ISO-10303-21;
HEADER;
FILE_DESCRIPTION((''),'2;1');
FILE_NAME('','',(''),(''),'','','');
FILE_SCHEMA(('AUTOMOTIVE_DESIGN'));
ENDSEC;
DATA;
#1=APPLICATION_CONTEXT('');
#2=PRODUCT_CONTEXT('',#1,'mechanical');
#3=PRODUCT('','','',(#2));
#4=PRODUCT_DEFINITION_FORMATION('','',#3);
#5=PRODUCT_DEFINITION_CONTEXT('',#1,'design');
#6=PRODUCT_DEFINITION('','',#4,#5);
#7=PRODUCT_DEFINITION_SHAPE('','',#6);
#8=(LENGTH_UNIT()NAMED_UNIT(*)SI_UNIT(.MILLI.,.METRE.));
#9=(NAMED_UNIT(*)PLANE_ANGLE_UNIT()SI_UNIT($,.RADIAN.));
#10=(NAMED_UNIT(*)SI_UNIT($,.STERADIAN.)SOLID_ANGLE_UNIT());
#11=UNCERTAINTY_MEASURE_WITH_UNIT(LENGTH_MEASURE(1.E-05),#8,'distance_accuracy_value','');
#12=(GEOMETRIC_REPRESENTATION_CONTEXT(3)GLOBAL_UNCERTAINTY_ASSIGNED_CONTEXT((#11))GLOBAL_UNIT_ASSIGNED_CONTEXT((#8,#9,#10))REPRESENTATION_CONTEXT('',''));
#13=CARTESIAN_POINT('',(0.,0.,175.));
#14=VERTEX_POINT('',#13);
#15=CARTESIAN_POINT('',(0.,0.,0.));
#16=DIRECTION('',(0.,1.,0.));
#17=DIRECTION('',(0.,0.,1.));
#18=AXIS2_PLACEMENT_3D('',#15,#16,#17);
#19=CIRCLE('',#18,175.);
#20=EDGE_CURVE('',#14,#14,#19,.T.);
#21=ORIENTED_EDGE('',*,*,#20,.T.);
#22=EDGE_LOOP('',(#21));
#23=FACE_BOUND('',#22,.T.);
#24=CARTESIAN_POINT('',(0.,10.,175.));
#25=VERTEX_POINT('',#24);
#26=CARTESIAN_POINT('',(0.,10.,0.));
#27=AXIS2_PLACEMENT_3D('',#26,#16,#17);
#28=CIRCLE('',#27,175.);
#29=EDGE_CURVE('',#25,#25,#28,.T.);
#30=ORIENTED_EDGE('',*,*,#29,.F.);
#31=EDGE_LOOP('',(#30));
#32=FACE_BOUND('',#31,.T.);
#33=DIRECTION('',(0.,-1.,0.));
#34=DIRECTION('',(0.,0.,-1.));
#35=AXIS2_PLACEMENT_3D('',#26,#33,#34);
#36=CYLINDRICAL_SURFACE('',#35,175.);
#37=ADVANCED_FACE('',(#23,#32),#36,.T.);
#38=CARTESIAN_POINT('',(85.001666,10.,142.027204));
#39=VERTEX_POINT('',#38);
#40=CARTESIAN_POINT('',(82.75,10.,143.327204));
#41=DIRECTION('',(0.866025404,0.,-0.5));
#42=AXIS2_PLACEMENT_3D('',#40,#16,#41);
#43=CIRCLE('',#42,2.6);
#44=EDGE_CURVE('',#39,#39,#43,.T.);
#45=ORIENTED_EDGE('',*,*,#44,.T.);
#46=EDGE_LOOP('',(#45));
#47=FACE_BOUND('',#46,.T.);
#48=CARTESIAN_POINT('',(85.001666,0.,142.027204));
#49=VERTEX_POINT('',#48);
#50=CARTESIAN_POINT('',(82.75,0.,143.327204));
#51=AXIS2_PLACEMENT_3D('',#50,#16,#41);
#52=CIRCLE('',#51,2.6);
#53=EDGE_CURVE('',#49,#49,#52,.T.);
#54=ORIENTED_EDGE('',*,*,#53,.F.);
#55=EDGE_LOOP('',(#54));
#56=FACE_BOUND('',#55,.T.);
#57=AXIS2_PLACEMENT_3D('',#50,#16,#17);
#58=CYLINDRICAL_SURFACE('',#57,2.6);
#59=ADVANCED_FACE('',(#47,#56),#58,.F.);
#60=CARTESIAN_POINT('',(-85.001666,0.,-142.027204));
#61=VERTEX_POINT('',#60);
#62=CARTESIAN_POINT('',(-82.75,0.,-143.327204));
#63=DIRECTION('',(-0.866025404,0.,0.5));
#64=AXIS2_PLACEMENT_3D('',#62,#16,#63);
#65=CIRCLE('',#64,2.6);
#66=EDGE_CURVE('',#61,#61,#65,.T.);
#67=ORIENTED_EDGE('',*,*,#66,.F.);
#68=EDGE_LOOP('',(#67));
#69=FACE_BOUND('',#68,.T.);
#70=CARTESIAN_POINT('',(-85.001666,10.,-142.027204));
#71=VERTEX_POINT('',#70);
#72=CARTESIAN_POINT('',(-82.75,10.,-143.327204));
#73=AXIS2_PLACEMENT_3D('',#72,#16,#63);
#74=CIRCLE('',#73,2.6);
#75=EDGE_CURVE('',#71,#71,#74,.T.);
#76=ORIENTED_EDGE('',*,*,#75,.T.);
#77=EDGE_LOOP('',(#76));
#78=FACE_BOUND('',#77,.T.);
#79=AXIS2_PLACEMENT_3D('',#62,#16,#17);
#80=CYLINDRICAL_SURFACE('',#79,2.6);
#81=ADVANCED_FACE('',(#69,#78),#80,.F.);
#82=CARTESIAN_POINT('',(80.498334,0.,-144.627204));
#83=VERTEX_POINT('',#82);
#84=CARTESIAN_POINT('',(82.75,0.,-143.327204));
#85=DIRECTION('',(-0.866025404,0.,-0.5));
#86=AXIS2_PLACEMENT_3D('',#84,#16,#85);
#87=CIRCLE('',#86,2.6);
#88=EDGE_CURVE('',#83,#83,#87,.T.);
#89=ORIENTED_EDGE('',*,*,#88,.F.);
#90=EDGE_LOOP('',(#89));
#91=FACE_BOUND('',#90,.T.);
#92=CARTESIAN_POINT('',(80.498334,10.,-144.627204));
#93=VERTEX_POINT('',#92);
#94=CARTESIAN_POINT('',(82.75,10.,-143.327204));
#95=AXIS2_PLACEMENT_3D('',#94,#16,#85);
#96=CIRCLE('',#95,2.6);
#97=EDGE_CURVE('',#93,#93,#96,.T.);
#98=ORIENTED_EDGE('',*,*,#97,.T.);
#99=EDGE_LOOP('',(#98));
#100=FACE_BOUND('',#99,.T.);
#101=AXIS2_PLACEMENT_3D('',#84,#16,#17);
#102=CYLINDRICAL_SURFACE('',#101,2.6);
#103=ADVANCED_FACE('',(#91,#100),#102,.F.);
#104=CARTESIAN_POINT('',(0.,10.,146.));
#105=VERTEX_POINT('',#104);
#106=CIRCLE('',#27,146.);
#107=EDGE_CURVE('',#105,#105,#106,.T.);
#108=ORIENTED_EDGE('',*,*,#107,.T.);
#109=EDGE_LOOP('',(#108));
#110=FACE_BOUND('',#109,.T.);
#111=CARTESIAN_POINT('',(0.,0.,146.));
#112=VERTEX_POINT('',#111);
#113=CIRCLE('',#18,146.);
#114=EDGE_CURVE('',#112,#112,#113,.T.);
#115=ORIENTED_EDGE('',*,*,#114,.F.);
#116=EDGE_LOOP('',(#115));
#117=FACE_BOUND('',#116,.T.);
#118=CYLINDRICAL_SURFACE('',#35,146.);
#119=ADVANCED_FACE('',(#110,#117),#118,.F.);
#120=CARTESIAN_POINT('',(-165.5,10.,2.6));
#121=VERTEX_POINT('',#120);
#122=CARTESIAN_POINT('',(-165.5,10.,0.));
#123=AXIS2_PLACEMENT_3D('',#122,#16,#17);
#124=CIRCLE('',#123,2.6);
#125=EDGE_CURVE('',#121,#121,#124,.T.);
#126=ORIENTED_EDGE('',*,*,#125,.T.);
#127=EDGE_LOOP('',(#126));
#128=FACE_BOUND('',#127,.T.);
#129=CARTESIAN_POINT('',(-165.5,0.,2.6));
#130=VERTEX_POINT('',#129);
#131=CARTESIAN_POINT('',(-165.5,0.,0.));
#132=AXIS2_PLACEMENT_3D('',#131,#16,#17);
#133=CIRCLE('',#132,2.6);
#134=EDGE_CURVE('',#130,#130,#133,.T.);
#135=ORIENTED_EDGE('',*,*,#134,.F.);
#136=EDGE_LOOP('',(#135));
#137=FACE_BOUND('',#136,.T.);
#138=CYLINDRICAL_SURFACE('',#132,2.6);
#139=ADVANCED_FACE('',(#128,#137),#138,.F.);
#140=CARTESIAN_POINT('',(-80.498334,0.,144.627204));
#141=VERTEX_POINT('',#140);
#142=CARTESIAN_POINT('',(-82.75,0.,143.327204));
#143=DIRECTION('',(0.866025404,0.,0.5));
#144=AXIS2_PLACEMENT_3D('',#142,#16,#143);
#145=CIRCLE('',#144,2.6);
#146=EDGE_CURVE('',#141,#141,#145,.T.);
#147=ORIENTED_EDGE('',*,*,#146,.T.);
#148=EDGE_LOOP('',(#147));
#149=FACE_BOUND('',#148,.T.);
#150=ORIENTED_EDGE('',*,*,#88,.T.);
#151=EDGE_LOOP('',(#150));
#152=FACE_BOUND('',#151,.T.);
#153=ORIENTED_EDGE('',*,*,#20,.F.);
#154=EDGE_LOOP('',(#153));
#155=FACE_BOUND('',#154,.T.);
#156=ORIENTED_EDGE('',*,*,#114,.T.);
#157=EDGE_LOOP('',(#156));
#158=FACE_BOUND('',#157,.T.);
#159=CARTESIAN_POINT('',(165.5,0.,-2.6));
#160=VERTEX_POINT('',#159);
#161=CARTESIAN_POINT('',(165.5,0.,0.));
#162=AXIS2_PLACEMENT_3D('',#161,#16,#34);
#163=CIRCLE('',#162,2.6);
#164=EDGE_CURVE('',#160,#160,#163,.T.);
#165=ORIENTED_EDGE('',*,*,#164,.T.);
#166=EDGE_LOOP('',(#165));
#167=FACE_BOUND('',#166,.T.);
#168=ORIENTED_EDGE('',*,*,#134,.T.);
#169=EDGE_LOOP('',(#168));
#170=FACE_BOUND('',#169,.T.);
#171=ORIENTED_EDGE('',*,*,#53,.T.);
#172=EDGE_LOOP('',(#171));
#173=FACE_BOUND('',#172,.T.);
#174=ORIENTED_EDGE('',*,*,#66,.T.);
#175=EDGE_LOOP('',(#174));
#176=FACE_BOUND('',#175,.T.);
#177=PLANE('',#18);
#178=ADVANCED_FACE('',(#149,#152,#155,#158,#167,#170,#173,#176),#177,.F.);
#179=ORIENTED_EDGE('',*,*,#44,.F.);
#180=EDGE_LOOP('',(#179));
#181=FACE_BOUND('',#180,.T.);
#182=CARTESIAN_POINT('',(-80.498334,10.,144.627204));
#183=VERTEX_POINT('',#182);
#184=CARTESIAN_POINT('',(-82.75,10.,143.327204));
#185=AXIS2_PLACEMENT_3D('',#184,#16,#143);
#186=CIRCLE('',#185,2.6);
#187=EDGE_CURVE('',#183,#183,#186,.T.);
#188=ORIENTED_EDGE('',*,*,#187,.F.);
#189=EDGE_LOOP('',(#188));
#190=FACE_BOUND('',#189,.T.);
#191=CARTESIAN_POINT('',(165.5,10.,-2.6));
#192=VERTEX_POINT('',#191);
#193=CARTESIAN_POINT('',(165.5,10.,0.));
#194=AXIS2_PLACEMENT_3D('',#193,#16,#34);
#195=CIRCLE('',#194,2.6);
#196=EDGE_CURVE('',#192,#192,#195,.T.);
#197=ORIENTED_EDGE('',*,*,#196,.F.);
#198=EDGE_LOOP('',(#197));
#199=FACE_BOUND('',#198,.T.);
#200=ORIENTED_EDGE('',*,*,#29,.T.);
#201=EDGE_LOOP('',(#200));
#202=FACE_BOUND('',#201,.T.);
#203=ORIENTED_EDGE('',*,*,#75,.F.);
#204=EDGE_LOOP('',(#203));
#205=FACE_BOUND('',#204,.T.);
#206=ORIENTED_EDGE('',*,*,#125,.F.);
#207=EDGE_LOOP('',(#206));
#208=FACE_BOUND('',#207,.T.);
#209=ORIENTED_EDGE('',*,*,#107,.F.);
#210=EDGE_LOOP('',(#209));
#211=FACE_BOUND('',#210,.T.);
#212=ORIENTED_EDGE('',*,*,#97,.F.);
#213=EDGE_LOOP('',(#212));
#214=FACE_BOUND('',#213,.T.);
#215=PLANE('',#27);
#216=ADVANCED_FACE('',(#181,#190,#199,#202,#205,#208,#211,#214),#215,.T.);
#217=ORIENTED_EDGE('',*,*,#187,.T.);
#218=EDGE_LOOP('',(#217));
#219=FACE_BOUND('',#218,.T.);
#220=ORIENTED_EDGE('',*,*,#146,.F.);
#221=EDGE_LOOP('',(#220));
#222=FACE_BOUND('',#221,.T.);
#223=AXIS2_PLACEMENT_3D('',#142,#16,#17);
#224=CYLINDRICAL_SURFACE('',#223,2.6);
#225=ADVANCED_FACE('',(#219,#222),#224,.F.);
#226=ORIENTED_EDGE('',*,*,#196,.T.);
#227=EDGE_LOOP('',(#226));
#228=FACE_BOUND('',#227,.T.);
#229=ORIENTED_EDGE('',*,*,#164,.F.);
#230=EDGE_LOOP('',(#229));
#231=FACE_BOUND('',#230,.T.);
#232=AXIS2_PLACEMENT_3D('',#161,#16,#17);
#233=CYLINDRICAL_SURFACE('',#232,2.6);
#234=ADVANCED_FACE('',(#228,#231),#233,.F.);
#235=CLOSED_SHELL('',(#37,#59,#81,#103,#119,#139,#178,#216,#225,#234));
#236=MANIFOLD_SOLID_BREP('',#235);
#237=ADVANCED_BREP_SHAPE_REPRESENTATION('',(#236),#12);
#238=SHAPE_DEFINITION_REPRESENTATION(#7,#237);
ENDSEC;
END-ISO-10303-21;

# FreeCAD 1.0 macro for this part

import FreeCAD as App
import Part
import Sketcher
from FreeCAD import Vector
Q = App.Units.Quantity

doc = App.newDocument("Part")
body = doc.addObject("PartDesign::Body", "Body")

sketch1 = body.newObject("Sketcher::SketchObject", "Sketch")
sketch1.AttachmentSupport = (doc.getObject("XZ_Plane"), [""])
sketch1.MapMode = "FlatFace"
sketch1.addGeometry(Part.Circle(Vector(0, 0, 0), Vector(0, 0, 1), 175), False)
sketch1.addGeometry(Part.Circle(Vector(0, 0, 0), Vector(0, 0, 1), 146), False)
sketch1.addConstraint(Sketcher.Constraint("Coincident", 0, 3, -1, 1))
sketch1.addConstraint(Sketcher.Constraint("Coincident", 1, 3, -1, 1))
sketch1.addConstraint(Sketcher.Constraint("Diameter", 0, Q("350 mm")))
sketch1.addConstraint(Sketcher.Constraint("Diameter", 1, Q("292 mm")))
pad1 = body.newObject("PartDesign::Pad", "Pad")
pad1.Profile = sketch1
pad1.Length = 10
pad1.Reversed = True

sketch2 = body.newObject("Sketcher::SketchObject", "Sketch001")
sketch2.AttachmentSupport = (doc.getObject("XZ_Plane"), [""])
sketch2.MapMode = "FlatFace"
sketch2.AttachmentOffset = App.Placement(Vector(0, 0, -10), App.Rotation())
sketch2.addGeometry(Part.Circle(Vector(-165.5, 0, 0), Vector(0, 0, 1), 2.6), False)
sketch2.addConstraint(Sketcher.Constraint("PointOnObject", 0, 3, -1))
sketch2.addConstraint(Sketcher.Constraint("Diameter", 0, Q("5.2 mm")))
sketch2.addConstraint(Sketcher.Constraint("DistanceX", 0, 3, -1, 1, Q("165.5 mm")))
pocket1 = body.newObject("PartDesign::Pocket", "Pocket")
pocket1.Profile = sketch2
pocket1.Type = "ThroughAll"
pocket1.Reversed = True
doc.recompute()

polarpattern = body.newObject("PartDesign::PolarPattern", "PolarPattern")
polarpattern.Originals = [pocket1]
polarpattern.Axis = (doc.getObject("Y_Axis"), [""])
polarpattern.Angle = 360
polarpattern.Occurrences = 6
body.Tip = polarpattern

doc.recompute()
